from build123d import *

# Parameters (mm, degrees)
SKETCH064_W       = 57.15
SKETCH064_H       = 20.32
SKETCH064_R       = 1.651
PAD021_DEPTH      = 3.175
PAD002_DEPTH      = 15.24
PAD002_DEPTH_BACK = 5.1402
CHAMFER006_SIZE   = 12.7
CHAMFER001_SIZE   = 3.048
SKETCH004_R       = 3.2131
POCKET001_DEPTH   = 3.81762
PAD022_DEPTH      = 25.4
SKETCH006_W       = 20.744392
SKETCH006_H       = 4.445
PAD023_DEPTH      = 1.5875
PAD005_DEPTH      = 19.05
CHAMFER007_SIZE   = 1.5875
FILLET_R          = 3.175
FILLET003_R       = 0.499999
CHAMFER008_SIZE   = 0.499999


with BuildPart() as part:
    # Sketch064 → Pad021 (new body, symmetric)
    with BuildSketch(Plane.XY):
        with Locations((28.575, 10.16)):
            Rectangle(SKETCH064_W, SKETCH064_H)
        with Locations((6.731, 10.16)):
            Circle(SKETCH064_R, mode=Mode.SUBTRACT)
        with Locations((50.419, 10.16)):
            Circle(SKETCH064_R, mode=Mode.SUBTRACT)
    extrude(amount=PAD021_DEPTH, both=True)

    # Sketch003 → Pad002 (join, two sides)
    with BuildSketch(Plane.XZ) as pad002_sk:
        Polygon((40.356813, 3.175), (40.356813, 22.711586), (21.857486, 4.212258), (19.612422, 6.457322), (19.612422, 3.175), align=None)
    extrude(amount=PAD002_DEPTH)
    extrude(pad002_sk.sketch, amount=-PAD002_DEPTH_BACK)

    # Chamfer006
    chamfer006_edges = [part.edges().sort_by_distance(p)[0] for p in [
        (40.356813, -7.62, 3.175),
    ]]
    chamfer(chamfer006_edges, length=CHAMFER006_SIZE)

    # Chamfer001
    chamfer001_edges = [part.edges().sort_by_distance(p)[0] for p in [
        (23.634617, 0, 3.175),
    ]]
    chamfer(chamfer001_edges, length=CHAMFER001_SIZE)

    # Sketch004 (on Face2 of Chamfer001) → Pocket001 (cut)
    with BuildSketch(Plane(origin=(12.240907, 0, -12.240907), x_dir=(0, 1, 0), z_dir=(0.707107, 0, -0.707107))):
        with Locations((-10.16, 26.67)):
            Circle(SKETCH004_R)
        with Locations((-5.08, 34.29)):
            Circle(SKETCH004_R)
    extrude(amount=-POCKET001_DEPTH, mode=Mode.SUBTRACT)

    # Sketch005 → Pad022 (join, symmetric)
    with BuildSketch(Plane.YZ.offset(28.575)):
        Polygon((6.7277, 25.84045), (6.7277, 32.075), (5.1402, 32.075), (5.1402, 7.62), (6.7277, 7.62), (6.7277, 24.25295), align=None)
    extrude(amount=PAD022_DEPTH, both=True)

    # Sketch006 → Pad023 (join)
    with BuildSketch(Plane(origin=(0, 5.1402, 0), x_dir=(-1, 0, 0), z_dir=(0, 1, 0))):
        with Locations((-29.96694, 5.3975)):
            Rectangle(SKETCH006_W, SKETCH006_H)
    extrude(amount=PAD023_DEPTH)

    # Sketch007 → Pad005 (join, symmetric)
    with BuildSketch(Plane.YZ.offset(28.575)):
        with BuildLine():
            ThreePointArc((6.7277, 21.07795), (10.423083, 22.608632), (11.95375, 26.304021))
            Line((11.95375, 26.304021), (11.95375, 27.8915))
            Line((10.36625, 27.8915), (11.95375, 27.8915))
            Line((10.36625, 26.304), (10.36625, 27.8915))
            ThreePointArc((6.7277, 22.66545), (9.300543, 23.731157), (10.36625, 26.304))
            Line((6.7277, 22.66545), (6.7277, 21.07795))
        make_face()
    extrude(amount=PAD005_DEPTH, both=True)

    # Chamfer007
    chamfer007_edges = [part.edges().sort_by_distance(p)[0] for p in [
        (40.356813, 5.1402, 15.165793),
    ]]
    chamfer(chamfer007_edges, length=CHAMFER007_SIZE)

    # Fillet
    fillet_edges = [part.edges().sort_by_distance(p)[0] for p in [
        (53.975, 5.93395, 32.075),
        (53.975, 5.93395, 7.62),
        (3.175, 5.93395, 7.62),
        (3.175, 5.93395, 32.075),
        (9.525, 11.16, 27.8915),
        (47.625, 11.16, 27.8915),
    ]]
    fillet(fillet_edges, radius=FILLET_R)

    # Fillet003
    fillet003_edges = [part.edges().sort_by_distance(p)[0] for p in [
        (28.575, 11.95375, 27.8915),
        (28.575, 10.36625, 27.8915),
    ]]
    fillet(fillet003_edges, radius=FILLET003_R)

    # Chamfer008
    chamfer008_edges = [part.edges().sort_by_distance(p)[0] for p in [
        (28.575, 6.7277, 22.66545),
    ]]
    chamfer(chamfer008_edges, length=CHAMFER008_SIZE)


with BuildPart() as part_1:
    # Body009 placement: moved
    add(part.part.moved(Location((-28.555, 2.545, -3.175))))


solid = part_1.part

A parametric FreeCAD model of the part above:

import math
import FreeCAD as App
import Part
import Sketcher
Q = App.Units.Quantity


def edges_at(feature, points):
    """Names of the edges that pass closest to the given points."""
    edges = feature.Shape.Edges
    near = lambda p: min(range(len(edges)), key=lambda i: edges[i].distToShape(Part.Vertex(*p))[0])
    return sorted({f"Edge{near(p) + 1}" for p in points})


def add_polygon(sketch, points):
    """Adds a closed chain of lines whose ends are joined by coincident constraints."""
    first, n = sketch.GeometryCount, len(points)
    for a, b in zip(points, points[1:] + points[:1]):
        sketch.addGeometry(Part.LineSegment(App.Vector(*a, 0), App.Vector(*b, 0)), False)
    for i in range(n):
        sketch.addConstraint(Sketcher.Constraint("Coincident", first + i, 2, first + (i + 1) % n, 1))

doc = App.newDocument("Part")
body = doc.addObject("PartDesign::Body", "Body")

# Sketch on XY plane
sketch1 = body.newObject("Sketcher::SketchObject", "Sketch")
sketch1.AttachmentSupport = (doc.getObject("XY_Plane"), [""])
sketch1.MapMode = "FlatFace"
add_polygon(sketch1, [(0, 20.3), (0, 0), (57.1, 0), (57.1, 20.3)])  # lines 0-3
sketch1.addGeometry(Part.Circle(App.Vector(6.7, 10.2, 0), App.Vector(0, 0, 1), 1.7), False)  # 4
sketch1.addGeometry(Part.Circle(App.Vector(50.4, 10.2, 0), App.Vector(0, 0, 1), 1.7), False)  # 5
sketch1.addConstraint(Sketcher.Constraint("Vertical", 0))
sketch1.addConstraint(Sketcher.Constraint("Horizontal", 1))
sketch1.addConstraint(Sketcher.Constraint("Vertical", 2))
sketch1.addConstraint(Sketcher.Constraint("Horizontal", 3))
sketch1.addConstraint(Sketcher.Constraint("Coincident", 0, 2, -1, 1))
sketch1.addConstraint(Sketcher.Constraint("Equal", 4, 5))
sketch1.addConstraint(Sketcher.Constraint("Horizontal", 4, 3, 5, 3))
sketch1.addConstraint(Sketcher.Constraint("Diameter", 4, Q("0.13 in")))
sketch1.addConstraint(Sketcher.Constraint("DistanceY", 0, 2, 0, 1, Q("0.8 in")))
sketch1.addConstraint(Sketcher.Constraint("DistanceX", 1, 1, 1, 2, Q("2.25 in")))
sketch1.addConstraint(Sketcher.Constraint("DistanceY", -1, 1, 4, 3, Q("0.4 in")))
sketch1.addConstraint(Sketcher.Constraint("DistanceX", 4, 3, 5, 3, Q("1.72 in")))
sketch1.addConstraint(Sketcher.Constraint("DistanceX", -1, 1, 4, 3, Q("0.265 in")))
pad1 = body.newObject("PartDesign::Pad", "Pad")
pad1.Profile = sketch1
pad1.Length = Q("0.25 in")
pad1.Midplane = True

# Sketch on XZ plane
sketch2 = body.newObject("Sketcher::SketchObject", "Sketch001")
sketch2.AttachmentSupport = (doc.getObject("XZ_Plane"), [""])
sketch2.MapMode = "FlatFace"
add_polygon(sketch2, [(40.4, 3.2), (40.4, 22.7), (21.9, 4.2), (19.6, 6.5), (19.6, 3.2)])  # lines 0-4
sketch2.addConstraint(Sketcher.Constraint("Vertical", 0))
sketch2.addConstraint(Sketcher.Constraint("Vertical", 3))
sketch2.addConstraint(Sketcher.Constraint("Horizontal", 4))
sketch2.addConstraint(Sketcher.Constraint("Perpendicular", 1, 2))
sketch2.addConstraint(Sketcher.Constraint("Angle", 1, Q("-134.999998 deg")))
sketch2.addConstraint(Sketcher.Constraint("Distance", 1, Q("1.03 in")))
sketch2.addConstraint(Sketcher.Constraint("Distance", 2, Q("0.125 in")))
sketch2.addConstraint(Sketcher.Constraint("DistanceY", -1, 1, 3, 2, Q("0.125 in")))
sketch2.addConstraint(Sketcher.Constraint("DistanceY", 3, 2, 3, 1, 3.282322))
sketch2.addConstraint(Sketcher.Constraint("DistanceX", -1, 1, 2, 2, 19.612422))
pad2 = body.newObject("PartDesign::Pad", "Pad001")
pad2.Profile = sketch2
pad2.Type = "TwoLengths"
pad2.Length = Q("0.6 in")
pad2.Length2 = 5.1402
doc.recompute()

chamfer = body.newObject("PartDesign::Chamfer", "Chamfer")
chamfer.Base = (pad2, edges_at(pad2, [(40.357, -7.62, 3.175)]))
chamfer.Size = Q("0.5 in")
doc.recompute()

chamfer2 = body.newObject("PartDesign::Chamfer", "Chamfer001")
chamfer2.Base = (chamfer, edges_at(chamfer, [(23.635, 0, 3.175)]))
chamfer2.Size = Q("0.12 in")

# Sketch on an angled plane
sketch3 = body.newObject("Sketcher::SketchObject", "Sketch002")
sketch3.Placement = App.Placement(App.Vector(12.240907, 0, -12.240907), App.Rotation(App.Vector(0, 1, 0), App.Vector(0.707106781, 0, 0.707106781), App.Vector(0.707106781, 0, -0.707106781), "ZXY"))
sketch3.addGeometry(Part.Circle(App.Vector(-10.2, 26.7, 0), App.Vector(0, 0, 1), 3.2), False)
sketch3.addGeometry(Part.Circle(App.Vector(-5.1, 34.3, 0), App.Vector(0, 0, 1), 3.2), False)
sketch3.addConstraint(Sketcher.Constraint("Equal", 0, 1))
sketch3.addConstraint(Sketcher.Constraint("Diameter", 0, Q("0.253 in")))
sketch3.addConstraint(Sketcher.Constraint("DistanceX", 0, 3, -1, 1, Q("0.4 in")))
sketch3.addConstraint(Sketcher.Constraint("DistanceX", 1, 3, -1, 1, Q("0.2 in")))
sketch3.addConstraint(Sketcher.Constraint("DistanceY", 0, 3, 1, 3, Q("0.3 in")))
sketch3.addConstraint(Sketcher.Constraint("DistanceY", -1, 1, 0, 3, Q("1.05 in")))
pocket1 = body.newObject("PartDesign::Pocket", "Pocket")
pocket1.Profile = sketch3
pocket1.Length = Q("0.1503 in")

# Sketch on YZ plane
sketch4 = body.newObject("Sketcher::SketchObject", "Sketch003")
sketch4.AttachmentSupport = (doc.getObject("YZ_Plane"), [""])
sketch4.MapMode = "FlatFace"
sketch4.AttachmentOffset = App.Placement(App.Vector(0, 0, 1.125 * 25.4), App.Rotation())
add_polygon(sketch4, [(6.7, 32.1), (5.1, 32.1), (5.1, 7.6), (6.7, 7.6)])  # lines 0-3
sketch4.addConstraint(Sketcher.Constraint("Horizontal", 0))
sketch4.addConstraint(Sketcher.Constraint("Vertical", 1))
sketch4.addConstraint(Sketcher.Constraint("Horizontal", 2))
sketch4.addConstraint(Sketcher.Constraint("Vertical", 3))
sketch4.addConstraint(Sketcher.Constraint("DistanceY", -1, 1, 1, 2, Q("0.3 in")))
sketch4.addConstraint(Sketcher.Constraint("DistanceX", 0, 2, 0, 1, Q("0.0625 in")))
sketch4.addConstraint(Sketcher.Constraint("DistanceY", 1, 2, 1, 1, 24.455))
sketch4.addConstraint(Sketcher.Constraint("DistanceX", -1, 1, 0, 2, 5.1402))
pad3 = body.newObject("PartDesign::Pad", "Pad002")
pad3.Profile = sketch4
pad3.Length = Q("2 in")
pad3.Midplane = True

# Sketch on XZ plane
sketch5 = body.newObject("Sketcher::SketchObject", "Sketch004")
sketch5.AttachmentSupport = (doc.getObject("XZ_Plane"), [""])
sketch5.MapMode = "FlatFace"
sketch5.AttachmentOffset = App.Placement(App.Vector(0, 0, -5.1402), App.Rotation())
add_polygon(sketch5, [(40.3, 7.6), (40.3, 3.2), (19.6, 3.2), (19.6, 7.6)])  # lines 0-3
sketch5.addConstraint(Sketcher.Constraint("Vertical", 0))
sketch5.addConstraint(Sketcher.Constraint("Horizontal", 1))
sketch5.addConstraint(Sketcher.Constraint("Vertical", 2))
sketch5.addConstraint(Sketcher.Constraint("Horizontal", 3))
sketch5.addConstraint(Sketcher.Constraint("DistanceY", -1, 1, 2, 2, Q("0.3 in")))
sketch5.addConstraint(Sketcher.Constraint("DistanceY", 0, 2, 0, 1, Q("0.175 in")))
sketch5.addConstraint(Sketcher.Constraint("DistanceX", 1, 2, 1, 1, 20.744392))
sketch5.addConstraint(Sketcher.Constraint("DistanceX", -1, 1, 0, 2, 40.339136))
pad4 = body.newObject("PartDesign::Pad", "Pad003")
pad4.Profile = sketch5
pad4.Length = Q("0.0625 in")
pad4.Reversed = True

# Sketch on YZ plane
sketch6 = body.newObject("Sketcher::SketchObject", "Sketch005")
sketch6.AttachmentSupport = (doc.getObject("YZ_Plane"), [""])
sketch6.MapMode = "FlatFace"
sketch6.AttachmentOffset = App.Placement(App.Vector(0, 0, 1.125 * 25.4), App.Rotation())
sketch6.addGeometry(Part.ArcOfCircle(Part.Circle(App.Vector(6.7, 26.3, 0), App.Vector(0, 0, 1), 5.2), math.radians(-90), math.radians(0)), False)
sketch6.addGeometry(Part.LineSegment(App.Vector(12, 26.3, 0), App.Vector(12, 27.9, 0)), False)
sketch6.addGeometry(Part.LineSegment(App.Vector(12, 27.9, 0), App.Vector(10.4, 27.9, 0)), False)
sketch6.addGeometry(Part.LineSegment(App.Vector(10.4, 27.9, 0), App.Vector(10.4, 26.3, 0)), False)
sketch6.addGeometry(Part.ArcOfCircle(Part.Circle(App.Vector(6.7, 26.3, 0), App.Vector(0, 0, 1), 3.6), math.radians(-90), math.radians(0)), False)
sketch6.addGeometry(Part.LineSegment(App.Vector(6.7, 22.7, 0), App.Vector(6.7, 21.1, 0)), False)
sketch6.addConstraint(Sketcher.Constraint("Coincident", 0, 2, 1, 1))
sketch6.addConstraint(Sketcher.Constraint("Coincident", 1, 2, 2, 1))
sketch6.addConstraint(Sketcher.Constraint("Coincident", 2, 2, 3, 1))
sketch6.addConstraint(Sketcher.Constraint("Tangent", 3, 2, 4, 2))
sketch6.addConstraint(Sketcher.Constraint("Coincident", 4, 1, 5, 1))
sketch6.addConstraint(Sketcher.Constraint("Coincident", 5, 2, 0, 1))
sketch6.addConstraint(Sketcher.Constraint("Vertical", 1))
sketch6.addConstraint(Sketcher.Constraint("Horizontal", 2))
sketch6.addConstraint(Sketcher.Constraint("Vertical", 3))
sketch6.addConstraint(Sketcher.Constraint("Vertical", 5))
sketch6.addConstraint(Sketcher.Constraint("Coincident", 4, 3, 0, 3))
sketch6.addConstraint(Sketcher.Constraint("Vertical", 0, 3, 4, 1))
sketch6.addConstraint(Sketcher.Constraint("Equal", 2, 3))
sketch6.addConstraint(Sketcher.Constraint("DistanceX", 2, 2, 2, 1, Q("0.0625 in")))
sketch6.addConstraint(Sketcher.Constraint("Radius", 0, 5.22605))
sketch6.addConstraint(Sketcher.Constraint("DistanceY", 1, 1, 1, 2, 1.587479))
sketch6.addConstraint(Sketcher.Constraint("DistanceX", -1, 1, 0, 3, 6.7277))
sketch6.addConstraint(Sketcher.Constraint("DistanceY", -1, 1, 0, 3, 26.304))
pad5 = body.newObject("PartDesign::Pad", "Pad004")
pad5.Profile = sketch6
pad5.Length = Q("1.5 in")
pad5.Midplane = True
doc.recompute()

chamfer3 = body.newObject("PartDesign::Chamfer", "Chamfer002")
chamfer3.Base = (pad5, edges_at(pad5, [(40.357, 5.14, 15.166)]))
chamfer3.Size = Q("0.0625 in")
doc.recompute()

fillet = body.newObject("PartDesign::Fillet", "Fillet")
fillet.Base = (chamfer3, edges_at(chamfer3, [
    (53.975, 5.934, 32.075),
    (53.975, 5.934, 7.62),
    (3.175, 5.934, 7.62),
    (3.175, 5.934, 32.075),
    (9.525, 11.16, 27.892),
    (47.625, 11.16, 27.892),
]))
fillet.Radius = Q("0.125 in")
doc.recompute()

fillet2 = body.newObject("PartDesign::Fillet", "Fillet001")
fillet2.Base = (fillet, edges_at(fillet, [(28.575, 11.954, 27.892), (28.575, 10.366, 27.892)]))
fillet2.Radius = 0.499999
doc.recompute()

chamfer4 = body.newObject("PartDesign::Chamfer", "Chamfer003")
chamfer4.Base = (fillet2, edges_at(fillet2, [(28.575, 6.728, 22.665)]))
chamfer4.Size = 0.499999
body2 = doc.addObject("PartDesign::Body", "Body001")
doc.recompute()

body.Placement = App.Placement(App.Vector(-28.555, 2.545, -3.175), App.Rotation(App.Vector(0, 0, 1), 0))
boolean = body2.newObject("PartDesign::Boolean", "Boolean")
boolean.Type = "Fuse"
boolean.addObjects([body])

doc.recompute()
